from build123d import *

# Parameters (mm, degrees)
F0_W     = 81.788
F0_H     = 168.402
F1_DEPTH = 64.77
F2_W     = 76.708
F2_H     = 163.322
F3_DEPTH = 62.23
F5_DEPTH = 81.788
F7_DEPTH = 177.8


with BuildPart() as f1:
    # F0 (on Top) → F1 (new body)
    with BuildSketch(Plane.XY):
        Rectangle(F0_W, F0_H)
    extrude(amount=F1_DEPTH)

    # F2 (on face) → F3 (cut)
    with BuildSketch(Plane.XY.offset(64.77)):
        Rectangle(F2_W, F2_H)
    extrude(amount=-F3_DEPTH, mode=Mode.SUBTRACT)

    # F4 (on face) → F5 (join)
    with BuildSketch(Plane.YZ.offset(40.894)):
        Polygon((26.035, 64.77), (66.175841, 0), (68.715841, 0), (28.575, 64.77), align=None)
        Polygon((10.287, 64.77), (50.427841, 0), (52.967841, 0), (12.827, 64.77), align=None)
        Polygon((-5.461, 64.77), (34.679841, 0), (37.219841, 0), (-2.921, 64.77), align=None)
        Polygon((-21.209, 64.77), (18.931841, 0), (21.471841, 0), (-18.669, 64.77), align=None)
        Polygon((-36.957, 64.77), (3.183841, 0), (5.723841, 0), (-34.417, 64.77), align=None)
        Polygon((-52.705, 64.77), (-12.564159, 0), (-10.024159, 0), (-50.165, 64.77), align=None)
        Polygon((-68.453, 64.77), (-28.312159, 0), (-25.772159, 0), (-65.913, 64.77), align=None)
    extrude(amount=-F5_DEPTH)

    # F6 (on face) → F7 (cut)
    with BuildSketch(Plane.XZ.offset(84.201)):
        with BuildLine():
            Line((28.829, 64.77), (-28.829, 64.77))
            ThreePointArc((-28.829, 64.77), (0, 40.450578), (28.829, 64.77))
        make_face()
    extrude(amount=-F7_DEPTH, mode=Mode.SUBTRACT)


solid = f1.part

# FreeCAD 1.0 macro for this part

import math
import FreeCAD as App
import Part
import Sketcher
Q = App.Units.Quantity

doc = App.newDocument("Part")
body = doc.addObject("PartDesign::Body", "Body")

# Sketch on XY plane
sketch1 = body.newObject("Sketcher::SketchObject", "Sketch")
sketch1.AttachmentSupport = (doc.getObject("XY_Plane"), [""])
sketch1.MapMode = "FlatFace"
sketch1.addGeometry([
    Part.LineSegment(App.Vector(-41, 84, 0), App.Vector(-41, -84, 0)),
    Part.LineSegment(App.Vector(-41, -84, 0), App.Vector(41, -84, 0)),
    Part.LineSegment(App.Vector(41, -84, 0), App.Vector(41, 84, 0)),
    Part.LineSegment(App.Vector(41, 84, 0), App.Vector(-41, 84, 0)),
], False)
sketch1.addConstraint([
    Sketcher.Constraint("Coincident", 0, 2, 1, 1),
    Sketcher.Constraint("Coincident", 1, 2, 2, 1),
    Sketcher.Constraint("Coincident", 2, 2, 3, 1),
    Sketcher.Constraint("Coincident", 3, 2, 0, 1),
    Sketcher.Constraint("Vertical", 0),
    Sketcher.Constraint("Horizontal", 1),
    Sketcher.Constraint("Vertical", 2),
    Sketcher.Constraint("Horizontal", 3),
    Sketcher.Constraint("Symmetric", 0, 2, 2, 2, -1, 1),
    Sketcher.Constraint("DistanceX", 1, 1, 1, 2, Q("3.22 in")),
    Sketcher.Constraint("DistanceY", 0, 2, 0, 1, Q("6.63 in")),
])
pad1 = body.newObject("PartDesign::Pad", "Pad")
pad1.Profile = sketch1
pad1.Length = Q("2.55 in")

# Sketch on XY plane
sketch2 = body.newObject("Sketcher::SketchObject", "Sketch001")
sketch2.AttachmentSupport = (doc.getObject("XY_Plane"), [""])
sketch2.MapMode = "FlatFace"
sketch2.AttachmentOffset = App.Placement(App.Vector(0, 0, 2.55 * 25.4), App.Rotation())
sketch2.addGeometry([
    Part.LineSegment(App.Vector(-38, 82, 0), App.Vector(-38, -82, 0)),
    Part.LineSegment(App.Vector(-38, -82, 0), App.Vector(38, -82, 0)),
    Part.LineSegment(App.Vector(38, -82, 0), App.Vector(38, 82, 0)),
    Part.LineSegment(App.Vector(38, 82, 0), App.Vector(-38, 82, 0)),
], False)
sketch2.addConstraint([
    Sketcher.Constraint("Coincident", 0, 2, 1, 1),
    Sketcher.Constraint("Coincident", 1, 2, 2, 1),
    Sketcher.Constraint("Coincident", 2, 2, 3, 1),
    Sketcher.Constraint("Coincident", 3, 2, 0, 1),
    Sketcher.Constraint("Vertical", 0),
    Sketcher.Constraint("Horizontal", 1),
    Sketcher.Constraint("Vertical", 2),
    Sketcher.Constraint("Horizontal", 3),
    Sketcher.Constraint("Symmetric", 0, 2, 2, 2, -1, 1),
    Sketcher.Constraint("DistanceX", 1, 1, 1, 2, Q("3.02 in")),
    Sketcher.Constraint("DistanceY", 0, 2, 0, 1, Q("6.43 in")),
])
pocket1 = body.newObject("PartDesign::Pocket", "Pocket")
pocket1.Profile = sketch2
pocket1.Length = Q("2.45 in")

# Sketch on YZ plane
sketch3 = body.newObject("Sketcher::SketchObject", "Sketch002")
sketch3.AttachmentSupport = (doc.getObject("YZ_Plane"), [""])
sketch3.MapMode = "FlatFace"
sketch3.AttachmentOffset = App.Placement(App.Vector(0, 0, 1.61 * 25.4), App.Rotation())
sketch3.addGeometry([
    Part.LineSegment(App.Vector(26, 64.8, 0), App.Vector(66.2, 0, 0)),  # 0
    Part.LineSegment(App.Vector(66.2, 0, 0), App.Vector(68.7, 0, 0)),  # 1
    Part.LineSegment(App.Vector(68.7, 0, 0), App.Vector(28.6, 64.8, 0)),  # 2
    Part.LineSegment(App.Vector(28.6, 64.8, 0), App.Vector(26, 64.8, 0)),  # 3
    Part.LineSegment(App.Vector(10.3, 64.8, 0), App.Vector(50.4, 0, 0)),  # 4
    Part.LineSegment(App.Vector(50.4, 0, 0), App.Vector(53, 0, 0)),  # 5
    Part.LineSegment(App.Vector(53, 0, 0), App.Vector(12.8, 64.8, 0)),  # 6
    Part.LineSegment(App.Vector(12.8, 64.8, 0), App.Vector(10.3, 64.8, 0)),  # 7
    Part.LineSegment(App.Vector(-5.5, 64.8, 0), App.Vector(34.7, 0, 0)),  # 8
    Part.LineSegment(App.Vector(34.7, 0, 0), App.Vector(37.2, 0, 0)),  # 9
    Part.LineSegment(App.Vector(37.2, 0, 0), App.Vector(-2.9, 64.8, 0)),  # 10
    Part.LineSegment(App.Vector(-2.9, 64.8, 0), App.Vector(-5.5, 64.8, 0)),  # 11
    Part.LineSegment(App.Vector(-21.2, 64.8, 0), App.Vector(18.9, 0, 0)),  # 12
    Part.LineSegment(App.Vector(18.9, 0, 0), App.Vector(21.5, 0, 0)),  # 13
    Part.LineSegment(App.Vector(21.5, 0, 0), App.Vector(-18.7, 64.8, 0)),  # 14
    Part.LineSegment(App.Vector(-18.7, 64.8, 0), App.Vector(-21.2, 64.8, 0)),  # 15
    Part.LineSegment(App.Vector(-37, 64.8, 0), App.Vector(3.2, 0, 0)),  # 16
    Part.LineSegment(App.Vector(3.2, 0, 0), App.Vector(5.7, 0, 0)),  # 17
    Part.LineSegment(App.Vector(5.7, 0, 0), App.Vector(-34.4, 64.8, 0)),  # 18
    Part.LineSegment(App.Vector(-34.4, 64.8, 0), App.Vector(-37, 64.8, 0)),  # 19
    Part.LineSegment(App.Vector(-52.7, 64.8, 0), App.Vector(-12.6, 0, 0)),  # 20
    Part.LineSegment(App.Vector(-12.6, 0, 0), App.Vector(-10, 0, 0)),  # 21
    Part.LineSegment(App.Vector(-10, 0, 0), App.Vector(-50.2, 64.8, 0)),  # 22
    Part.LineSegment(App.Vector(-50.2, 64.8, 0), App.Vector(-52.7, 64.8, 0)),  # 23
    Part.LineSegment(App.Vector(-68.5, 64.8, 0), App.Vector(-28.3, 0, 0)),  # 24
    Part.LineSegment(App.Vector(-28.3, 0, 0), App.Vector(-25.8, 0, 0)),  # 25
    Part.LineSegment(App.Vector(-25.8, 0, 0), App.Vector(-65.9, 64.8, 0)),  # 26
    Part.LineSegment(App.Vector(-65.9, 64.8, 0), App.Vector(-68.5, 64.8, 0)),  # 27
], False)
sketch3.addConstraint([
    Sketcher.Constraint("Coincident", 0, 2, 1, 1),
    Sketcher.Constraint("Coincident", 1, 2, 2, 1),
    Sketcher.Constraint("Coincident", 2, 2, 3, 1),
    Sketcher.Constraint("Coincident", 3, 2, 0, 1),
    Sketcher.Constraint("Coincident", 4, 2, 5, 1),
    Sketcher.Constraint("Coincident", 5, 2, 6, 1),
    Sketcher.Constraint("Coincident", 6, 2, 7, 1),
    Sketcher.Constraint("Coincident", 7, 2, 4, 1),
    Sketcher.Constraint("Coincident", 8, 2, 9, 1),
    Sketcher.Constraint("Coincident", 9, 2, 10, 1),
    Sketcher.Constraint("Coincident", 10, 2, 11, 1),
    Sketcher.Constraint("Coincident", 11, 2, 8, 1),
    Sketcher.Constraint("Coincident", 12, 2, 13, 1),
    Sketcher.Constraint("Coincident", 13, 2, 14, 1),
    Sketcher.Constraint("Coincident", 14, 2, 15, 1),
    Sketcher.Constraint("Coincident", 15, 2, 12, 1),
    Sketcher.Constraint("Coincident", 16, 2, 17, 1),
    Sketcher.Constraint("Coincident", 17, 2, 18, 1),
    Sketcher.Constraint("Coincident", 18, 2, 19, 1),
    Sketcher.Constraint("Coincident", 19, 2, 16, 1),
    Sketcher.Constraint("Coincident", 20, 2, 21, 1),
    Sketcher.Constraint("Coincident", 21, 2, 22, 1),
    Sketcher.Constraint("Coincident", 22, 2, 23, 1),
    Sketcher.Constraint("Coincident", 23, 2, 20, 1),
    Sketcher.Constraint("Coincident", 24, 2, 25, 1),
    Sketcher.Constraint("Coincident", 25, 2, 26, 1),
    Sketcher.Constraint("Coincident", 26, 2, 27, 1),
    Sketcher.Constraint("Coincident", 27, 2, 24, 1),
    Sketcher.Constraint("Horizontal", 1),
    Sketcher.Constraint("Horizontal", 3),
    Sketcher.Constraint("Horizontal", 5),
    Sketcher.Constraint("Horizontal", 7),
    Sketcher.Constraint("Horizontal", 9),
    Sketcher.Constraint("Horizontal", 11),
    Sketcher.Constraint("Horizontal", 13),
    Sketcher.Constraint("Horizontal", 15),
    Sketcher.Constraint("Horizontal", 17),
    Sketcher.Constraint("Horizontal", 19),
    Sketcher.Constraint("Horizontal", 21),
    Sketcher.Constraint("Horizontal", 23),
    Sketcher.Constraint("Horizontal", 25),
    Sketcher.Constraint("Horizontal", 27),
    Sketcher.Constraint("PointOnObject", 0, 2, -1),
    Sketcher.Constraint("PointOnObject", 4, 2, -1),
    Sketcher.Constraint("PointOnObject", 8, 2, -1),
    Sketcher.Constraint("PointOnObject", 12, 2, -1),
    Sketcher.Constraint("PointOnObject", 16, 2, -1),
    Sketcher.Constraint("PointOnObject", 20, 2, -1),
    Sketcher.Constraint("PointOnObject", 24, 2, -1),
    Sketcher.Constraint("Parallel", 0, 2),
    Sketcher.Constraint("Parallel", 2, 4),
    Sketcher.Constraint("Parallel", 4, 6),
    Sketcher.Constraint("Parallel", 6, 8),
    Sketcher.Constraint("Parallel", 8, 10),
    Sketcher.Constraint("Parallel", 10, 12),
    Sketcher.Constraint("Parallel", 12, 14),
    Sketcher.Constraint("Parallel", 14, 16),
    Sketcher.Constraint("Parallel", 16, 18),
    Sketcher.Constraint("Parallel", 18, 20),
    Sketcher.Constraint("Parallel", 20, 22),
    Sketcher.Constraint("Parallel", 22, 24),
    Sketcher.Constraint("Parallel", 24, 26),
    Sketcher.Constraint("Horizontal", 3, 2, 6, 2),
    Sketcher.Constraint("Horizontal", 7, 2, 10, 2),
    Sketcher.Constraint("Horizontal", 11, 2, 14, 2),
    Sketcher.Constraint("Horizontal", 15, 2, 18, 2),
    Sketcher.Constraint("Horizontal", 19, 2, 22, 2),
    Sketcher.Constraint("Horizontal", 23, 2, 26, 2),
    Sketcher.Constraint("Equal", 3, 5),
    Sketcher.Constraint("Equal", 7, 9),
    Sketcher.Constraint("Equal", 11, 13),
    Sketcher.Constraint("Equal", 15, 17),
    Sketcher.Constraint("Equal", 19, 21),
    Sketcher.Constraint("Equal", 23, 25),
    Sketcher.Constraint("Distance", 0, Q("3 in")),
    Sketcher.Constraint("DistanceX", 1, 1, 1, 2, Q("0.1 in")),
    Sketcher.Constraint("DistanceY", -1, 1, 2, 2, Q("2.55 in")),
    Sketcher.Constraint("DistanceX", 4, 2, 0, 2, Q("0.62 in")),
    Sketcher.Constraint("DistanceX", 8, 2, 4, 2, Q("0.62 in")),
    Sketcher.Constraint("DistanceX", 12, 2, 8, 2, Q("0.62 in")),
    Sketcher.Constraint("DistanceX", 16, 2, 12, 2, Q("0.62 in")),
    Sketcher.Constraint("DistanceX", 20, 2, 16, 2, Q("0.62 in")),
    Sketcher.Constraint("DistanceX", 24, 2, 20, 2, Q("0.62 in")),
    Sketcher.Constraint("DistanceX", -1, 1, 2, 2, Q("1.125 in")),
])
pad2 = body.newObject("PartDesign::Pad", "Pad001")
pad2.Profile = sketch3
pad2.Length = Q("3.22 in")
pad2.Reversed = True

# Sketch on XZ plane
sketch4 = body.newObject("Sketcher::SketchObject", "Sketch003")
sketch4.AttachmentSupport = (doc.getObject("XZ_Plane"), [""])
sketch4.MapMode = "FlatFace"
sketch4.AttachmentOffset = App.Placement(App.Vector(0, 0, 3.315 * 25.4), App.Rotation())
sketch4.addGeometry([
    Part.LineSegment(App.Vector(29, 65, 0), App.Vector(-29, 65, 0)),
    Part.ArcOfCircle(Part.Circle(App.Vector(0, 70, 0), App.Vector(0, 0, 1), 29), math.radians(-170), math.radians(-10)),
], False)
sketch4.addConstraint([
    Sketcher.Constraint("Coincident", 0, 1, 1, 2),
    Sketcher.Constraint("Coincident", 1, 1, 0, 2),
    Sketcher.Constraint("Horizontal", 0),
    Sketcher.Constraint("PointOnObject", 1, 3, -2),
    Sketcher.Constraint("DistanceX", 0, 2, 0, 1, Q("2.27 in")),
    Sketcher.Constraint("DistanceY", -1, 1, 0, 1, Q("2.55 in")),
    Sketcher.Constraint("Radius", 1, Q("29.247108 mm")),
])
pocket2 = body.newObject("PartDesign::Pocket", "Pocket001")
pocket2.Profile = sketch4
pocket2.Length = Q("7 in")

doc.recompute()
